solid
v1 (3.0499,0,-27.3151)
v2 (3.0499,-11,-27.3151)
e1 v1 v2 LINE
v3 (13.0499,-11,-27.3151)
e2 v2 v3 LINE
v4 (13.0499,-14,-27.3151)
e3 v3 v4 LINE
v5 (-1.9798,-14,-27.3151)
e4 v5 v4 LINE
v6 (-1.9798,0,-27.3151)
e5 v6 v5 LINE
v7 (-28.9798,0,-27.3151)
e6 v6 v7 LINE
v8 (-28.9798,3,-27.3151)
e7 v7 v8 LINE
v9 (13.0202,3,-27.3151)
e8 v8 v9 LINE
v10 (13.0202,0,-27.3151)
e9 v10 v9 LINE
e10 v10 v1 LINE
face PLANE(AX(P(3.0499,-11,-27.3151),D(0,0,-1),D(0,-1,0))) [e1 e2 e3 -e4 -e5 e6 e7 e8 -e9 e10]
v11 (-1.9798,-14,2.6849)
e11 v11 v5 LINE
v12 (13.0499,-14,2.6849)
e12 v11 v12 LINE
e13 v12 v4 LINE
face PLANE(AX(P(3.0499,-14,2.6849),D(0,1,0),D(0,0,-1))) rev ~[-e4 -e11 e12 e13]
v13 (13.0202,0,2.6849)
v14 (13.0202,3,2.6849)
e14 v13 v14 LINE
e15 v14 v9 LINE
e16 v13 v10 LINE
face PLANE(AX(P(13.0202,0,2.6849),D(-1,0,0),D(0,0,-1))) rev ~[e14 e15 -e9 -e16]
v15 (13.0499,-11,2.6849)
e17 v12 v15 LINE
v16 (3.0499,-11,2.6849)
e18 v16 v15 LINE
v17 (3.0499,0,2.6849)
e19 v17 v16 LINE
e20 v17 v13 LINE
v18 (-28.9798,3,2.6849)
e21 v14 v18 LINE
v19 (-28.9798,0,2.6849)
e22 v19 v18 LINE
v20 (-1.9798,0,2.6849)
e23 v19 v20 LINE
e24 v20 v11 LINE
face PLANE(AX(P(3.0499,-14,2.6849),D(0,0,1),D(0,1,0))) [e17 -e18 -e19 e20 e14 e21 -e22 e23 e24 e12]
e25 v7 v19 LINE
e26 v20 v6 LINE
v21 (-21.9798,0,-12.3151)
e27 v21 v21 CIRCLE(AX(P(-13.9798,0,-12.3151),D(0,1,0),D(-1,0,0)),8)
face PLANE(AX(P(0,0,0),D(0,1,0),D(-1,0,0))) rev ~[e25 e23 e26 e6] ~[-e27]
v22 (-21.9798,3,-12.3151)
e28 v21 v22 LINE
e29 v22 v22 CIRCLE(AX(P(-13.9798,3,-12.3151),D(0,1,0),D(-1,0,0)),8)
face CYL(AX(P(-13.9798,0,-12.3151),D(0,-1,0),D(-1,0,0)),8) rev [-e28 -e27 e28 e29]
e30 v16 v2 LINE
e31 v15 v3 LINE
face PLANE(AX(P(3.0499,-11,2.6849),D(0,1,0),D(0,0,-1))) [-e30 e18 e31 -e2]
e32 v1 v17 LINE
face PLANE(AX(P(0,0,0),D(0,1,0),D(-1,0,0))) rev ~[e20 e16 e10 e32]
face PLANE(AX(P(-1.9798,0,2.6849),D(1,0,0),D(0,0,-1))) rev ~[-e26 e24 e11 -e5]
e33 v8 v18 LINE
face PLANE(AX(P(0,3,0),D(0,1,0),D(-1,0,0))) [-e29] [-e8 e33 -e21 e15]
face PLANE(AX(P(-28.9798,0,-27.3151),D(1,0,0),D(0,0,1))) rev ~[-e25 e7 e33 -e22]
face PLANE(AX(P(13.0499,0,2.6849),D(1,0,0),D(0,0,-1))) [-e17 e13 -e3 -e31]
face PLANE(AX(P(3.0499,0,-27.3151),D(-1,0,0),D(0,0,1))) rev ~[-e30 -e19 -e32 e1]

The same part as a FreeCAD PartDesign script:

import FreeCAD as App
import Part
import Sketcher

doc = App.newDocument("Part")
body = doc.addObject("PartDesign::Body", "Body")

sketch1 = body.newObject("Sketcher::SketchObject", "Sketch")
sketch1.AttachmentSupport = (doc.getObject("XZ_Plane"), [""])
sketch1.MapMode = "FlatFace"
sketch1.addGeometry(Part.LineSegment(App.Vector(-28.9798, -27.3151, 0), App.Vector(-28.9798, 2.6849, 0)), False)
sketch1.addGeometry(Part.LineSegment(App.Vector(-28.9798, 2.6849, 0), App.Vector(13.0202, 2.6849, 0)), False)
sketch1.addGeometry(Part.LineSegment(App.Vector(13.0202, 2.6849, 0), App.Vector(13.0202, -27.3151, 0)), False)
sketch1.addGeometry(Part.LineSegment(App.Vector(13.0202, -27.3151, 0), App.Vector(-28.9798, -27.3151, 0)), False)
sketch1.addGeometry(Part.Circle(App.Vector(-13.9798, -12.3151, 0), App.Vector(0, 0, 1), 8), False)
sketch1.addConstraint(Sketcher.Constraint("Coincident", 0, 2, 1, 1))
sketch1.addConstraint(Sketcher.Constraint("Coincident", 1, 2, 2, 1))
sketch1.addConstraint(Sketcher.Constraint("Coincident", 2, 2, 3, 1))
sketch1.addConstraint(Sketcher.Constraint("Coincident", 3, 2, 0, 1))
sketch1.addConstraint(Sketcher.Constraint("Vertical", 0))
sketch1.addConstraint(Sketcher.Constraint("Horizontal", 1))
sketch1.addConstraint(Sketcher.Constraint("Vertical", 2))
sketch1.addConstraint(Sketcher.Constraint("Horizontal", 3))
sketch1.addConstraint(Sketcher.Constraint("Diameter", 4, 16.0))
sketch1.addConstraint(Sketcher.Constraint("DistanceY", 0, 1, 0, 2, 30.0))
sketch1.addConstraint(Sketcher.Constraint("DistanceX", 0, 2, 4, 3, 15.0))
sketch1.addConstraint(Sketcher.Constraint("DistanceY", 4, 3, 0, 2, 15.0))
sketch1.addConstraint(Sketcher.Constraint("DistanceX", 4, 3, 1, 2, 27.0))
sketch1.addConstraint(Sketcher.Constraint("DistanceY", 4, 3, -1, 1, 12.315))
sketch1.addConstraint(Sketcher.Constraint("DistanceX", 4, 3, -1, 1, 13.9798))
pad1 = body.newObject("PartDesign::Pad", "Pad")
pad1.Profile = sketch1
pad1.Length = 3
pad1.Reversed = True

sketch2 = body.newObject("Sketcher::SketchObject", "Sketch001")
sketch2.AttachmentSupport = (doc.getObject("XZ_Plane"), [""])
sketch2.MapMode = "FlatFace"
sketch2.addGeometry(Part.LineSegment(App.Vector(3.0499, 2.6849, 0), App.Vector(-1.9798, 2.6849, 0)), False)
sketch2.addGeometry(Part.LineSegment(App.Vector(-1.9798, 2.6849, 0), App.Vector(-1.9798, -27.3151, 0)), False)
sketch2.addGeometry(Part.LineSegment(App.Vector(-1.9798, -27.3151, 0), App.Vector(3.0499, -27.3151, 0)), False)
sketch2.addGeometry(Part.LineSegment(App.Vector(3.0499, -27.3151, 0), App.Vector(3.0499, 2.6849, 0)), False)
sketch2.addConstraint(Sketcher.Constraint("Coincident", 0, 2, 1, 1))
sketch2.addConstraint(Sketcher.Constraint("Coincident", 1, 2, 2, 1))
sketch2.addConstraint(Sketcher.Constraint("Coincident", 2, 2, 3, 1))
sketch2.addConstraint(Sketcher.Constraint("Coincident", 3, 2, 0, 1))
sketch2.addConstraint(Sketcher.Constraint("Horizontal", 0))
sketch2.addConstraint(Sketcher.Constraint("Vertical", 1))
sketch2.addConstraint(Sketcher.Constraint("Horizontal", 2))
sketch2.addConstraint(Sketcher.Constraint("Vertical", 3))
sketch2.addConstraint(Sketcher.Constraint("DistanceY", 1, 2, 1, 1, 30.0))
sketch2.addConstraint(Sketcher.Constraint("DistanceX", -1, 1, 2, 2, 3.05))
sketch2.addConstraint(Sketcher.Constraint("DistanceX", 0, 2, 0, 1, 5.0297))
sketch2.addConstraint(Sketcher.Constraint("DistanceY", -1, 1, 0, 2, 2.685))
pad2 = body.newObject("PartDesign::Pad", "Pad001")
pad2.Profile = sketch2
pad2.Length = 14

sketch3 = body.newObject("Sketcher::SketchObject", "Sketch002")
sketch3.AttachmentSupport = (doc.getObject("YZ_Plane"), [""])
sketch3.MapMode = "FlatFace"
sketch3.AttachmentOffset = App.Placement(App.Vector(0, 0, 3.0499), App.Rotation())
sketch3.addGeometry(Part.LineSegment(App.Vector(-11, 2.6849, 0), App.Vector(-14, 2.6849, 0)), False)
sketch3.addGeometry(Part.LineSegment(App.Vector(-14, 2.6849, 0), App.Vector(-14, -27.3151, 0)), False)
sketch3.addGeometry(Part.LineSegment(App.Vector(-14, -27.3151, 0), App.Vector(-11, -27.3151, 0)), False)
sketch3.addGeometry(Part.LineSegment(App.Vector(-11, -27.3151, 0), App.Vector(-11, 2.6849, 0)), False)
sketch3.addConstraint(Sketcher.Constraint("Coincident", 0, 2, 1, 1))
sketch3.addConstraint(Sketcher.Constraint("Coincident", 1, 2, 2, 1))
sketch3.addConstraint(Sketcher.Constraint("Coincident", 2, 2, 3, 1))
sketch3.addConstraint(Sketcher.Constraint("Coincident", 3, 2, 0, 1))
sketch3.addConstraint(Sketcher.Constraint("Horizontal", 0))
sketch3.addConstraint(Sketcher.Constraint("Vertical", 1))
sketch3.addConstraint(Sketcher.Constraint("Horizontal", 2))
sketch3.addConstraint(Sketcher.Constraint("Vertical", 3))
sketch3.addConstraint(Sketcher.Constraint("DistanceX", 0, 2, 0, 1, 3.0))
sketch3.addConstraint(Sketcher.Constraint("DistanceX", 2, 2, -1, 1, 11.0))
sketch3.addConstraint(Sketcher.Constraint("DistanceY", 1, 2, 1, 1, 30.0))
sketch3.addConstraint(Sketcher.Constraint("DistanceY", -1, 1, 0, 2, 2.685))
pad3 = body.newObject("PartDesign::Pad", "Pad002")
pad3.Profile = sketch3
pad3.Length = 10

doc.recompute()
